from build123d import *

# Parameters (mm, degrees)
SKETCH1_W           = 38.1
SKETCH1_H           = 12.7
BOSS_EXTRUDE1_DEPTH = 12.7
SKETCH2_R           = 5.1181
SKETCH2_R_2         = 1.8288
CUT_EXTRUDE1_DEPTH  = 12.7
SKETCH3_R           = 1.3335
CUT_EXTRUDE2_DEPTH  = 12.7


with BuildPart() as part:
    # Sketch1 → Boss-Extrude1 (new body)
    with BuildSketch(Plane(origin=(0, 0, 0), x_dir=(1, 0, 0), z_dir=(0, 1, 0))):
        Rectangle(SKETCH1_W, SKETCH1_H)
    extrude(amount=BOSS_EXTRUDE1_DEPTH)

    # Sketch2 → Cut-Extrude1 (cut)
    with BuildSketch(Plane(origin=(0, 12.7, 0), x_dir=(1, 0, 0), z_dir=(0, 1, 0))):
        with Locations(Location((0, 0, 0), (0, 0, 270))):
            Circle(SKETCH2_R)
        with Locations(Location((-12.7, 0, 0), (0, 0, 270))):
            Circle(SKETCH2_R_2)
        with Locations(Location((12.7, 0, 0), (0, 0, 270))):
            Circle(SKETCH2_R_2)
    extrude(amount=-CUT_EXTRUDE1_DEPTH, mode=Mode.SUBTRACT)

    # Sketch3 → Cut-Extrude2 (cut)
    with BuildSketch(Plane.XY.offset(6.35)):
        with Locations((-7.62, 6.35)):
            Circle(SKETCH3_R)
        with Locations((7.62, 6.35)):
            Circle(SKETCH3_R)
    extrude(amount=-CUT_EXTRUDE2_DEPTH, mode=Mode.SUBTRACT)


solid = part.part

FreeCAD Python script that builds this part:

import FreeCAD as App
import Part
import Sketcher
from FreeCAD import Vector
Q = App.Units.Quantity

doc = App.newDocument("Part")
body = doc.addObject("PartDesign::Body", "Body")

sketch1 = doc.addObject("Sketcher::SketchObject", "Sketch")
body.addObject(sketch1)
sketch1.AttachmentSupport = (doc.XZ_Plane, [""])
sketch1.MapMode = "FlatFace"
sketch1.addGeometry([
    Part.LineSegment(Vector(-19, -6, 0), Vector(-19, 6, 0)),
    Part.LineSegment(Vector(-19, 6, 0), Vector(19, 6, 0)),
    Part.LineSegment(Vector(19, 6, 0), Vector(19, -6, 0)),
    Part.LineSegment(Vector(19, -6, 0), Vector(-19, -6, 0)),
], False)
sketch1.addConstraint([
    Sketcher.Constraint("Coincident", 0, 2, 1, 1),
    Sketcher.Constraint("Coincident", 1, 2, 2, 1),
    Sketcher.Constraint("Coincident", 2, 2, 3, 1),
    Sketcher.Constraint("Coincident", 3, 2, 0, 1),
    Sketcher.Constraint("Vertical", 0),
    Sketcher.Constraint("Horizontal", 1),
    Sketcher.Constraint("Vertical", 2),
    Sketcher.Constraint("Horizontal", 3),
    Sketcher.Constraint("Symmetric", 0, 2, 2, 2, -1, 1),
    Sketcher.Constraint("DistanceX", 1, 1, 1, 2, Q("1.5 in")),
    Sketcher.Constraint("DistanceY", 0, 1, 0, 2, Q("0.5 in")),
])
pad1 = doc.addObject("PartDesign::Pad", "Pad")
body.addObject(pad1)
pad1.Profile = sketch1
pad1.Length = Q("0.5 in")
pad1.Reversed = True

sketch2 = doc.addObject("Sketcher::SketchObject", "Sketch001")
body.addObject(sketch2)
sketch2.AttachmentSupport = (doc.XZ_Plane, [""])
sketch2.MapMode = "FlatFace"
sketch2.AttachmentOffset = App.Placement(Vector(0, 0, -0.5 * 25.4), App.Rotation())
sketch2.addGeometry([
    Part.Circle(Vector(0, 0, 0), Vector(0, 0, 1), 5.1),
    Part.Circle(Vector(-12.7, 0, 0), Vector(0, 0, 1), 1.8),
    Part.Circle(Vector(12.7, 0, 0), Vector(0, 0, 1), 1.8),
], False)
sketch2.addConstraint([
    Sketcher.Constraint("Coincident", 0, 3, -1, 1),
    Sketcher.Constraint("Equal", 1, 2),
    Sketcher.Constraint("Symmetric", 1, 3, 2, 3, -1, 1),
    Sketcher.Constraint("PointOnObject", 1, 3, -1),
    Sketcher.Constraint("Diameter", 0, Q("0.403 in")),
    Sketcher.Constraint("Diameter", 1, Q("0.144 in")),
    Sketcher.Constraint("DistanceX", 1, 3, 2, 3, Q("1 in")),
])
pocket1 = doc.addObject("PartDesign::Pocket", "Pocket")
body.addObject(pocket1)
pocket1.Profile = sketch2
pocket1.Length = Q("0.5 in")
pocket1.Reversed = True

sketch3 = doc.addObject("Sketcher::SketchObject", "Sketch002")
body.addObject(sketch3)
sketch3.AttachmentSupport = (doc.XY_Plane, [""])
sketch3.MapMode = "FlatFace"
sketch3.AttachmentOffset = App.Placement(Vector(0, 0, 0.25 * 25.4), App.Rotation())
sketch3.addGeometry([
    Part.Circle(Vector(-7.6, 6.3, 0), Vector(0, 0, 1), 1.3),
    Part.Circle(Vector(7.6, 6.3, 0), Vector(0, 0, 1), 1.3),
], False)
sketch3.addConstraint([
    Sketcher.Constraint("Equal", 0, 1),
    Sketcher.Constraint("Symmetric", 0, 3, 1, 3, -2),
    Sketcher.Constraint("Diameter", 0, Q("0.105 in")),
    Sketcher.Constraint("DistanceX", 0, 3, -1, 1, Q("0.3 in")),
    Sketcher.Constraint("DistanceY", -1, 1, 0, 3, Q("0.25 in")),
])
pocket2 = doc.addObject("PartDesign::Pocket", "Pocket001")
body.addObject(pocket2)
pocket2.Profile = sketch3
pocket2.Length = Q("0.5 in")

doc.recompute()
